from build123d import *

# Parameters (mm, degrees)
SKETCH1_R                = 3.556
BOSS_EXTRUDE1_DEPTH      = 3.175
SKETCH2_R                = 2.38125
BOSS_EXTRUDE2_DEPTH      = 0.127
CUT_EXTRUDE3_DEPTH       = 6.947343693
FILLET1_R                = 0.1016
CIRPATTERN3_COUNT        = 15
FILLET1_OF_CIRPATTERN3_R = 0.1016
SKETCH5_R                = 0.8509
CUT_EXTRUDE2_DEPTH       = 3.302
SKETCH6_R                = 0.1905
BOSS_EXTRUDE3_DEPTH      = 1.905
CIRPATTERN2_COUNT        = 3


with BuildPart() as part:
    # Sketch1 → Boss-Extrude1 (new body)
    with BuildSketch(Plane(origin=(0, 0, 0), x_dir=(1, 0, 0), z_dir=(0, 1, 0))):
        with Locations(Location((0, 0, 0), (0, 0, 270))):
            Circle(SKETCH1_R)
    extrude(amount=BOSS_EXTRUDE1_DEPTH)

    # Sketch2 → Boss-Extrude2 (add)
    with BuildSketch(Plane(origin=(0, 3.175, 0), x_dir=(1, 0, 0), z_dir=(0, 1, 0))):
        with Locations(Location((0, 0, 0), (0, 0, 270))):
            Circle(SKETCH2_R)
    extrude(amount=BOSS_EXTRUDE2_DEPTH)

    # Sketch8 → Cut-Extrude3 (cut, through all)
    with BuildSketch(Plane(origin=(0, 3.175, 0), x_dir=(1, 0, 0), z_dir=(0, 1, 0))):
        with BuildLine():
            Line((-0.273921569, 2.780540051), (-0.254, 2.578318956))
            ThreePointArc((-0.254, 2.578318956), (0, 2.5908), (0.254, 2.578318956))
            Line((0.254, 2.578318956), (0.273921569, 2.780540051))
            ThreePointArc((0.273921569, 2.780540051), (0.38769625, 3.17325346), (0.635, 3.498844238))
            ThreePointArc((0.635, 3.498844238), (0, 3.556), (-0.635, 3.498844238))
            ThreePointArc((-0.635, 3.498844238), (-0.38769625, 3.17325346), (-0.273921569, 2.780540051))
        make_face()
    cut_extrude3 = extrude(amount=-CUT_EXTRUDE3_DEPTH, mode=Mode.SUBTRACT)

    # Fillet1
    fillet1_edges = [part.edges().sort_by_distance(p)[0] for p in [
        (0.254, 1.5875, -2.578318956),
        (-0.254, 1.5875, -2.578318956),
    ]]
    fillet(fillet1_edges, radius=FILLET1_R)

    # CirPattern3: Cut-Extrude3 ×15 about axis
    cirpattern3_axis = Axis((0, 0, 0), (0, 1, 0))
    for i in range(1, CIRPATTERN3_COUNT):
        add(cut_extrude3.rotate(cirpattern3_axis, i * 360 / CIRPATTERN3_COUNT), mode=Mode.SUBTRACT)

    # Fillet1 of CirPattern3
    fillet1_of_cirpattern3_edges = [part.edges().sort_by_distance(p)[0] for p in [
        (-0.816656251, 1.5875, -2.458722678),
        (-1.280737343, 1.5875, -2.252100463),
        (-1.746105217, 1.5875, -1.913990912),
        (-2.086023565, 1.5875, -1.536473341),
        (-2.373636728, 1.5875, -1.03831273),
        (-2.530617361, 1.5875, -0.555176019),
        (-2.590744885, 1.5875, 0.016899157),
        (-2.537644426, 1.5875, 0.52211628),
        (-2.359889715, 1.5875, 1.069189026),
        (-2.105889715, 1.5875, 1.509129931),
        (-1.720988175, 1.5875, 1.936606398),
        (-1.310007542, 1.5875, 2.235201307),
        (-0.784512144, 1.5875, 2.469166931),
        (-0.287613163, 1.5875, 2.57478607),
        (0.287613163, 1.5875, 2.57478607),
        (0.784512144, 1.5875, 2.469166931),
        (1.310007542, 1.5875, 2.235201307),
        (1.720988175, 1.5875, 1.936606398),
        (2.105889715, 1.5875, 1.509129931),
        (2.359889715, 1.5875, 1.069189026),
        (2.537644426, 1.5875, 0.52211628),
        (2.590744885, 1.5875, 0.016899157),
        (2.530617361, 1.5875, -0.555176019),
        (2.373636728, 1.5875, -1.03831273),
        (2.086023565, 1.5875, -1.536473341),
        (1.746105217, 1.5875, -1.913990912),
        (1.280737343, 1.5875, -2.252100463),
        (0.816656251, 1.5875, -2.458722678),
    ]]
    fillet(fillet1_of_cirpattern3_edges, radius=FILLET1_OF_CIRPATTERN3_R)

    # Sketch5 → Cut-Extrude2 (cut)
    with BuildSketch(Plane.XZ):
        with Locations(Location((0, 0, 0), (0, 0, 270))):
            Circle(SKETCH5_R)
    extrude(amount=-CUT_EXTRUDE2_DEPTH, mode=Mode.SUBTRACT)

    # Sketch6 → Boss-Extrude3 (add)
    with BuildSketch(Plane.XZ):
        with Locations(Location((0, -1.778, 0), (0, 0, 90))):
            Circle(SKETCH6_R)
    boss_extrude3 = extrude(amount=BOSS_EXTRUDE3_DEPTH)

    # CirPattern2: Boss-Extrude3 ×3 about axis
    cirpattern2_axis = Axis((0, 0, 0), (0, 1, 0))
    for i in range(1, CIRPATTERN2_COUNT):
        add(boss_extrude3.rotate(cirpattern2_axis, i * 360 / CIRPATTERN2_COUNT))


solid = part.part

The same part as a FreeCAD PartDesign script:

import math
import FreeCAD as App
import Part
import Sketcher

V = App.Vector
Q = App.Units.Quantity


def edges_at(feature, points):
    """Names of the edges that pass closest to the given points."""
    edges = feature.Shape.Edges
    near = lambda p: min(range(len(edges)), key=lambda i: edges[i].distToShape(Part.Vertex(*p))[0])
    return sorted({f"Edge{near(p) + 1}" for p in points})

doc = App.newDocument("Part")
body = doc.addObject("PartDesign::Body", "Body")

# Sketch on XZ plane
sketch1 = body.newObject("Sketcher::SketchObject", "Sketch")
sketch1.AttachmentSupport = (doc.getObject("XZ_Plane"), [""])
sketch1.MapMode = "FlatFace"
sketch1.addGeometry(Part.Circle(V(0, 0, 0), V(0, 0, 1), 3.556), False)
sketch1.addConstraint(Sketcher.Constraint("Coincident", 0, 3, -1, 1))
sketch1.addConstraint(Sketcher.Constraint("Diameter", 0, Q("0.28 in")))
pad1 = body.newObject("PartDesign::Pad", "Pad")
pad1.Profile = sketch1
pad1.Length = Q("0.125 in")
pad1.Reversed = True

# Sketch on XZ plane
sketch2 = body.newObject("Sketcher::SketchObject", "Sketch001")
sketch2.AttachmentSupport = (doc.getObject("XZ_Plane"), [""])
sketch2.MapMode = "FlatFace"
sketch2.AttachmentOffset = App.Placement(V(0, 0, -0.125 * 25.4), App.Rotation())
sketch2.addGeometry(Part.Circle(V(0, 0, 0), V(0, 0, 1), 2.38125), False)
sketch2.addConstraint(Sketcher.Constraint("Coincident", 0, 3, -1, 1))
sketch2.addConstraint(Sketcher.Constraint("Diameter", 0, Q("0.1875 in")))
pad2 = body.newObject("PartDesign::Pad", "Pad001")
pad2.Profile = sketch2
pad2.Length = Q("0.005 in")
pad2.Reversed = True

# Sketch on XZ plane
sketch3 = body.newObject("Sketcher::SketchObject", "Sketch002")
sketch3.AttachmentSupport = (doc.getObject("XZ_Plane"), [""])
sketch3.MapMode = "FlatFace"
sketch3.AttachmentOffset = App.Placement(V(0, 0, -0.125 * 25.4), App.Rotation())
sketch3.addGeometry(Part.LineSegment(V(-0.273922, -2.78054, 0), V(-0.254, -2.578319, 0)), False)
sketch3.addGeometry(Part.ArcOfCircle(Part.Circle(V(0, 0, 0), V(0, 0, 1), 2.5908), math.radians(-95.626271), math.radians(-84.373729)), False)
sketch3.addGeometry(Part.LineSegment(V(0.254, -2.578319, 0), V(0.273922, -2.78054, 0)), False)
sketch3.addGeometry(Part.ArcOfCircle(Part.Circle(V(1.387087, -2.670878, 0), V(0, 0, 1), 1.118554), math.radians(-174.373729), math.radians(-132.250584)), False)
sketch3.addGeometry(Part.ArcOfCircle(Part.Circle(V(0, 0, 0), V(0, 0, 1), 3.556), math.radians(-100.286561), math.radians(-79.713439)), False)
sketch3.addGeometry(Part.ArcOfCircle(Part.Circle(V(-1.387087, -2.670878, 0), V(0, 0, 1), 1.118554), math.radians(-47.749416), math.radians(-5.626271)), False)
sketch3.addConstraint(Sketcher.Constraint("Coincident", 0, 2, 1, 1))
sketch3.addConstraint(Sketcher.Constraint("Coincident", 1, 2, 2, 1))
sketch3.addConstraint(Sketcher.Constraint("Tangent", 2, 2, 3, 1))
sketch3.addConstraint(Sketcher.Constraint("Coincident", 3, 2, 4, 2))
sketch3.addConstraint(Sketcher.Constraint("Coincident", 4, 1, 5, 1))
sketch3.addConstraint(Sketcher.Constraint("Tangent", 5, 2, 0, 1))
sketch3.addConstraint(Sketcher.Constraint("Coincident", 1, 3, -1, 1))
sketch3.addConstraint(Sketcher.Constraint("Coincident", 4, 3, -1, 1))
sketch3.addConstraint(Sketcher.Constraint("Equal", 3, 5))
sketch3.addConstraint(Sketcher.Constraint("Symmetric", 3, 3, 5, 3, -2))
sketch3.addConstraint(Sketcher.Constraint("Horizontal", 0, 2, 1, 2))
sketch3.addConstraint(Sketcher.Constraint("Radius", 4, Q("0.14 in")))
sketch3.addConstraint(Sketcher.Constraint("Radius", 1, Q("0.102 in")))
sketch3.addConstraint(Sketcher.Constraint("DistanceX", 0, 2, -1, 1, Q("0.01 in")))
sketch3.addConstraint(Sketcher.Constraint("DistanceX", 4, 1, 3, 2, Q("0.05 in")))
sketch3.addConstraint(Sketcher.Constraint("Distance", 0, Q("0.008 in")))
sketch3.addConstraint(Sketcher.Constraint("Radius", 3, Q("1.118554 mm")))
pocket1 = body.newObject("PartDesign::Pocket", "Pocket")
pocket1.Profile = sketch3
pocket1.Type = "ThroughAll"
pocket1.Reversed = True
doc.recompute()

fillet = body.newObject("PartDesign::Fillet", "Fillet")
fillet.Base = (pocket1, edges_at(pocket1, [(0.254, 1.587, -2.578), (-0.254, 1.587, -2.578)]))
fillet.Radius = Q("0.004 in")
doc.recompute()

polarpattern = body.newObject("PartDesign::PolarPattern", "PolarPattern")
polarpattern.Originals = [pocket1]
polarpattern.Axis = (doc.getObject("Y_Axis"), [""])
polarpattern.Angle = 360
polarpattern.Occurrences = 15
body.Tip = polarpattern
doc.recompute()

fillet2 = body.newObject("PartDesign::Fillet", "Fillet001")
fillet2.Base = (polarpattern, edges_at(polarpattern, [
    (-0.817, 1.587, -2.459),
    (-1.281, 1.587, -2.252),
    (-1.746, 1.587, -1.914),
    (-2.086, 1.587, -1.536),
    (-2.374, 1.587, -1.038),
    (-2.531, 1.587, -0.555),
    (-2.591, 1.587, 0.017),
    (-2.538, 1.587, 0.522),
    (-2.36, 1.587, 1.069),
    (-2.106, 1.587, 1.509),
    (-1.721, 1.587, 1.937),
    (-1.31, 1.587, 2.235),
    (-0.785, 1.587, 2.469),
    (-0.288, 1.587, 2.575),
    (0.288, 1.587, 2.575),
    (0.785, 1.587, 2.469),
    (1.31, 1.587, 2.235),
    (1.721, 1.587, 1.937),
    (2.106, 1.587, 1.509),
    (2.36, 1.587, 1.069),
    (2.538, 1.587, 0.522),
    (2.591, 1.587, 0.017),
    (2.531, 1.587, -0.555),
    (2.374, 1.587, -1.038),
    (2.086, 1.587, -1.536),
    (1.746, 1.587, -1.914),
    (1.281, 1.587, -2.252),
    (0.817, 1.587, -2.459),
]))
fillet2.Radius = Q("0.004 in")

# Sketch on XZ plane
sketch4 = body.newObject("Sketcher::SketchObject", "Sketch003")
sketch4.AttachmentSupport = (doc.getObject("XZ_Plane"), [""])
sketch4.MapMode = "FlatFace"
sketch4.addGeometry(Part.Circle(V(0, 0, 0), V(0, 0, 1), 0.8509), False)
sketch4.addConstraint(Sketcher.Constraint("Coincident", 0, 3, -1, 1))
sketch4.addConstraint(Sketcher.Constraint("Diameter", 0, Q("0.067 in")))
pocket2 = body.newObject("PartDesign::Pocket", "Pocket001")
pocket2.Profile = sketch4
pocket2.Length = Q("0.13 in")

# Sketch on XZ plane
sketch5 = body.newObject("Sketcher::SketchObject", "Sketch004")
sketch5.AttachmentSupport = (doc.getObject("XZ_Plane"), [""])
sketch5.MapMode = "FlatFace"
sketch5.addGeometry(Part.Circle(V(0, -1.778, 0), V(0, 0, 1), 0.1905), False)
sketch5.addConstraint(Sketcher.Constraint("PointOnObject", 0, 3, -2))
sketch5.addConstraint(Sketcher.Constraint("Diameter", 0, Q("0.015 in")))
sketch5.addConstraint(Sketcher.Constraint("DistanceY", 0, 3, -1, 1, Q("0.07 in")))
pad3 = body.newObject("PartDesign::Pad", "Pad002")
pad3.Profile = sketch5
pad3.Length = Q("0.075 in")
doc.recompute()

polarpattern2 = body.newObject("PartDesign::PolarPattern", "PolarPattern001")
polarpattern2.Originals = [pad3]
polarpattern2.Axis = (doc.getObject("Y_Axis"), [""])
polarpattern2.Angle = 360
polarpattern2.Occurrences = 3
body.Tip = polarpattern2

doc.recompute()
